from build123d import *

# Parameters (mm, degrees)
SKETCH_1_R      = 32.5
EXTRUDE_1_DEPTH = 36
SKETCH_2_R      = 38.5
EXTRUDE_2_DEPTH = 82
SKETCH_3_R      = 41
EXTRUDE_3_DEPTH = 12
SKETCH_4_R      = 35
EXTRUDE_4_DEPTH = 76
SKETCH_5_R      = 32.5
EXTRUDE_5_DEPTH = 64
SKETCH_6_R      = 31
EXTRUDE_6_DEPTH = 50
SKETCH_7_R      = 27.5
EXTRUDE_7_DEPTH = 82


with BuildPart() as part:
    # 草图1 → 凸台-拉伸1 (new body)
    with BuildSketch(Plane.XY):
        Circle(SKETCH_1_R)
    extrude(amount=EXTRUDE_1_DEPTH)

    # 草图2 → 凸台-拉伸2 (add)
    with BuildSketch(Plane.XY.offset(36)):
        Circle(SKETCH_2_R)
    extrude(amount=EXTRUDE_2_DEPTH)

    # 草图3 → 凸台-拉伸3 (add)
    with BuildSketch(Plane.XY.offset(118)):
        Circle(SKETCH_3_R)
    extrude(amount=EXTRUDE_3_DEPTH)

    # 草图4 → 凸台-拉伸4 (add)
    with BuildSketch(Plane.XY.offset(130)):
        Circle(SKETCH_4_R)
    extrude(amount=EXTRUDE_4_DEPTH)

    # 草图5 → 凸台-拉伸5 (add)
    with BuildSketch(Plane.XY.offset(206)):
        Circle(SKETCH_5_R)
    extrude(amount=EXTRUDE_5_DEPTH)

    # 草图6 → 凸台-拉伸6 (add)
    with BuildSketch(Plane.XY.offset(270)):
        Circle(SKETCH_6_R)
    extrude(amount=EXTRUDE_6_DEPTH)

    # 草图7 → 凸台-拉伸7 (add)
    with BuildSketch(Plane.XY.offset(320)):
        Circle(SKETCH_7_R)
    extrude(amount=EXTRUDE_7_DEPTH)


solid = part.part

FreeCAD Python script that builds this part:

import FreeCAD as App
import Part
import Sketcher
from FreeCAD import Vector
Q = App.Units.Quantity

doc = App.newDocument("Part")
body = doc.addObject("PartDesign::Body", "Body")

sketch1 = body.newObject("Sketcher::SketchObject", "Sketch")
sketch1.AttachmentSupport = (doc.getObject("XY_Plane"), [""])
sketch1.MapMode = "FlatFace"
sketch1.addGeometry(Part.Circle(Vector(0, 0, 0), Vector(0, 0, 1), 32), False)
sketch1.addConstraint(Sketcher.Constraint("Coincident", 0, 3, -1, 1))
sketch1.addConstraint(Sketcher.Constraint("Diameter", 0, Q("65 mm")))
pad1 = body.newObject("PartDesign::Pad", "Pad")
pad1.Profile = sketch1
pad1.Length = 36

sketch2 = body.newObject("Sketcher::SketchObject", "Sketch001")
sketch2.AttachmentSupport = (doc.getObject("XY_Plane"), [""])
sketch2.MapMode = "FlatFace"
sketch2.AttachmentOffset = App.Placement(Vector(0, 0, 36), App.Rotation())
sketch2.addGeometry(Part.Circle(Vector(0, 0, 0), Vector(0, 0, 1), 38), False)
sketch2.addConstraint(Sketcher.Constraint("Coincident", 0, 3, -1, 1))
sketch2.addConstraint(Sketcher.Constraint("Diameter", 0, Q("77 mm")))
pad2 = body.newObject("PartDesign::Pad", "Pad001")
pad2.Profile = sketch2
pad2.Length = 82

sketch3 = body.newObject("Sketcher::SketchObject", "Sketch002")
sketch3.AttachmentSupport = (doc.getObject("XY_Plane"), [""])
sketch3.MapMode = "FlatFace"
sketch3.AttachmentOffset = App.Placement(Vector(0, 0, 118), App.Rotation())
sketch3.addGeometry(Part.Circle(Vector(0, 0, 0), Vector(0, 0, 1), 41), False)
sketch3.addConstraint(Sketcher.Constraint("Coincident", 0, 3, -1, 1))
sketch3.addConstraint(Sketcher.Constraint("Diameter", 0, Q("82 mm")))
pad3 = body.newObject("PartDesign::Pad", "Pad002")
pad3.Profile = sketch3
pad3.Length = 12

sketch4 = body.newObject("Sketcher::SketchObject", "Sketch003")
sketch4.AttachmentSupport = (doc.getObject("XY_Plane"), [""])
sketch4.MapMode = "FlatFace"
sketch4.AttachmentOffset = App.Placement(Vector(0, 0, 130), App.Rotation())
sketch4.addGeometry(Part.Circle(Vector(0, 0, 0), Vector(0, 0, 1), 35), False)
sketch4.addConstraint(Sketcher.Constraint("Coincident", 0, 3, -1, 1))
sketch4.addConstraint(Sketcher.Constraint("Diameter", 0, Q("70 mm")))
pad4 = body.newObject("PartDesign::Pad", "Pad003")
pad4.Profile = sketch4
pad4.Length = 76

sketch5 = body.newObject("Sketcher::SketchObject", "Sketch004")
sketch5.AttachmentSupport = (doc.getObject("XY_Plane"), [""])
sketch5.MapMode = "FlatFace"
sketch5.AttachmentOffset = App.Placement(Vector(0, 0, 206), App.Rotation())
sketch5.addGeometry(Part.Circle(Vector(0, 0, 0), Vector(0, 0, 1), 32), False)
sketch5.addConstraint(Sketcher.Constraint("Coincident", 0, 3, -1, 1))
sketch5.addConstraint(Sketcher.Constraint("Diameter", 0, Q("65 mm")))
pad5 = body.newObject("PartDesign::Pad", "Pad004")
pad5.Profile = sketch5
pad5.Length = 64

sketch6 = body.newObject("Sketcher::SketchObject", "Sketch005")
sketch6.AttachmentSupport = (doc.getObject("XY_Plane"), [""])
sketch6.MapMode = "FlatFace"
sketch6.AttachmentOffset = App.Placement(Vector(0, 0, 270), App.Rotation())
sketch6.addGeometry(Part.Circle(Vector(0, 0, 0), Vector(0, 0, 1), 31), False)
sketch6.addConstraint(Sketcher.Constraint("Coincident", 0, 3, -1, 1))
sketch6.addConstraint(Sketcher.Constraint("Diameter", 0, Q("62 mm")))
pad6 = body.newObject("PartDesign::Pad", "Pad005")
pad6.Profile = sketch6
pad6.Length = 50

sketch7 = body.newObject("Sketcher::SketchObject", "Sketch006")
sketch7.AttachmentSupport = (doc.getObject("XY_Plane"), [""])
sketch7.MapMode = "FlatFace"
sketch7.AttachmentOffset = App.Placement(Vector(0, 0, 320), App.Rotation())
sketch7.addGeometry(Part.Circle(Vector(0, 0, 0), Vector(0, 0, 1), 28), False)
sketch7.addConstraint(Sketcher.Constraint("Coincident", 0, 3, -1, 1))
sketch7.addConstraint(Sketcher.Constraint("Diameter", 0, Q("55 mm")))
pad7 = body.newObject("PartDesign::Pad", "Pad006")
pad7.Profile = sketch7
pad7.Length = 82

doc.recompute()
